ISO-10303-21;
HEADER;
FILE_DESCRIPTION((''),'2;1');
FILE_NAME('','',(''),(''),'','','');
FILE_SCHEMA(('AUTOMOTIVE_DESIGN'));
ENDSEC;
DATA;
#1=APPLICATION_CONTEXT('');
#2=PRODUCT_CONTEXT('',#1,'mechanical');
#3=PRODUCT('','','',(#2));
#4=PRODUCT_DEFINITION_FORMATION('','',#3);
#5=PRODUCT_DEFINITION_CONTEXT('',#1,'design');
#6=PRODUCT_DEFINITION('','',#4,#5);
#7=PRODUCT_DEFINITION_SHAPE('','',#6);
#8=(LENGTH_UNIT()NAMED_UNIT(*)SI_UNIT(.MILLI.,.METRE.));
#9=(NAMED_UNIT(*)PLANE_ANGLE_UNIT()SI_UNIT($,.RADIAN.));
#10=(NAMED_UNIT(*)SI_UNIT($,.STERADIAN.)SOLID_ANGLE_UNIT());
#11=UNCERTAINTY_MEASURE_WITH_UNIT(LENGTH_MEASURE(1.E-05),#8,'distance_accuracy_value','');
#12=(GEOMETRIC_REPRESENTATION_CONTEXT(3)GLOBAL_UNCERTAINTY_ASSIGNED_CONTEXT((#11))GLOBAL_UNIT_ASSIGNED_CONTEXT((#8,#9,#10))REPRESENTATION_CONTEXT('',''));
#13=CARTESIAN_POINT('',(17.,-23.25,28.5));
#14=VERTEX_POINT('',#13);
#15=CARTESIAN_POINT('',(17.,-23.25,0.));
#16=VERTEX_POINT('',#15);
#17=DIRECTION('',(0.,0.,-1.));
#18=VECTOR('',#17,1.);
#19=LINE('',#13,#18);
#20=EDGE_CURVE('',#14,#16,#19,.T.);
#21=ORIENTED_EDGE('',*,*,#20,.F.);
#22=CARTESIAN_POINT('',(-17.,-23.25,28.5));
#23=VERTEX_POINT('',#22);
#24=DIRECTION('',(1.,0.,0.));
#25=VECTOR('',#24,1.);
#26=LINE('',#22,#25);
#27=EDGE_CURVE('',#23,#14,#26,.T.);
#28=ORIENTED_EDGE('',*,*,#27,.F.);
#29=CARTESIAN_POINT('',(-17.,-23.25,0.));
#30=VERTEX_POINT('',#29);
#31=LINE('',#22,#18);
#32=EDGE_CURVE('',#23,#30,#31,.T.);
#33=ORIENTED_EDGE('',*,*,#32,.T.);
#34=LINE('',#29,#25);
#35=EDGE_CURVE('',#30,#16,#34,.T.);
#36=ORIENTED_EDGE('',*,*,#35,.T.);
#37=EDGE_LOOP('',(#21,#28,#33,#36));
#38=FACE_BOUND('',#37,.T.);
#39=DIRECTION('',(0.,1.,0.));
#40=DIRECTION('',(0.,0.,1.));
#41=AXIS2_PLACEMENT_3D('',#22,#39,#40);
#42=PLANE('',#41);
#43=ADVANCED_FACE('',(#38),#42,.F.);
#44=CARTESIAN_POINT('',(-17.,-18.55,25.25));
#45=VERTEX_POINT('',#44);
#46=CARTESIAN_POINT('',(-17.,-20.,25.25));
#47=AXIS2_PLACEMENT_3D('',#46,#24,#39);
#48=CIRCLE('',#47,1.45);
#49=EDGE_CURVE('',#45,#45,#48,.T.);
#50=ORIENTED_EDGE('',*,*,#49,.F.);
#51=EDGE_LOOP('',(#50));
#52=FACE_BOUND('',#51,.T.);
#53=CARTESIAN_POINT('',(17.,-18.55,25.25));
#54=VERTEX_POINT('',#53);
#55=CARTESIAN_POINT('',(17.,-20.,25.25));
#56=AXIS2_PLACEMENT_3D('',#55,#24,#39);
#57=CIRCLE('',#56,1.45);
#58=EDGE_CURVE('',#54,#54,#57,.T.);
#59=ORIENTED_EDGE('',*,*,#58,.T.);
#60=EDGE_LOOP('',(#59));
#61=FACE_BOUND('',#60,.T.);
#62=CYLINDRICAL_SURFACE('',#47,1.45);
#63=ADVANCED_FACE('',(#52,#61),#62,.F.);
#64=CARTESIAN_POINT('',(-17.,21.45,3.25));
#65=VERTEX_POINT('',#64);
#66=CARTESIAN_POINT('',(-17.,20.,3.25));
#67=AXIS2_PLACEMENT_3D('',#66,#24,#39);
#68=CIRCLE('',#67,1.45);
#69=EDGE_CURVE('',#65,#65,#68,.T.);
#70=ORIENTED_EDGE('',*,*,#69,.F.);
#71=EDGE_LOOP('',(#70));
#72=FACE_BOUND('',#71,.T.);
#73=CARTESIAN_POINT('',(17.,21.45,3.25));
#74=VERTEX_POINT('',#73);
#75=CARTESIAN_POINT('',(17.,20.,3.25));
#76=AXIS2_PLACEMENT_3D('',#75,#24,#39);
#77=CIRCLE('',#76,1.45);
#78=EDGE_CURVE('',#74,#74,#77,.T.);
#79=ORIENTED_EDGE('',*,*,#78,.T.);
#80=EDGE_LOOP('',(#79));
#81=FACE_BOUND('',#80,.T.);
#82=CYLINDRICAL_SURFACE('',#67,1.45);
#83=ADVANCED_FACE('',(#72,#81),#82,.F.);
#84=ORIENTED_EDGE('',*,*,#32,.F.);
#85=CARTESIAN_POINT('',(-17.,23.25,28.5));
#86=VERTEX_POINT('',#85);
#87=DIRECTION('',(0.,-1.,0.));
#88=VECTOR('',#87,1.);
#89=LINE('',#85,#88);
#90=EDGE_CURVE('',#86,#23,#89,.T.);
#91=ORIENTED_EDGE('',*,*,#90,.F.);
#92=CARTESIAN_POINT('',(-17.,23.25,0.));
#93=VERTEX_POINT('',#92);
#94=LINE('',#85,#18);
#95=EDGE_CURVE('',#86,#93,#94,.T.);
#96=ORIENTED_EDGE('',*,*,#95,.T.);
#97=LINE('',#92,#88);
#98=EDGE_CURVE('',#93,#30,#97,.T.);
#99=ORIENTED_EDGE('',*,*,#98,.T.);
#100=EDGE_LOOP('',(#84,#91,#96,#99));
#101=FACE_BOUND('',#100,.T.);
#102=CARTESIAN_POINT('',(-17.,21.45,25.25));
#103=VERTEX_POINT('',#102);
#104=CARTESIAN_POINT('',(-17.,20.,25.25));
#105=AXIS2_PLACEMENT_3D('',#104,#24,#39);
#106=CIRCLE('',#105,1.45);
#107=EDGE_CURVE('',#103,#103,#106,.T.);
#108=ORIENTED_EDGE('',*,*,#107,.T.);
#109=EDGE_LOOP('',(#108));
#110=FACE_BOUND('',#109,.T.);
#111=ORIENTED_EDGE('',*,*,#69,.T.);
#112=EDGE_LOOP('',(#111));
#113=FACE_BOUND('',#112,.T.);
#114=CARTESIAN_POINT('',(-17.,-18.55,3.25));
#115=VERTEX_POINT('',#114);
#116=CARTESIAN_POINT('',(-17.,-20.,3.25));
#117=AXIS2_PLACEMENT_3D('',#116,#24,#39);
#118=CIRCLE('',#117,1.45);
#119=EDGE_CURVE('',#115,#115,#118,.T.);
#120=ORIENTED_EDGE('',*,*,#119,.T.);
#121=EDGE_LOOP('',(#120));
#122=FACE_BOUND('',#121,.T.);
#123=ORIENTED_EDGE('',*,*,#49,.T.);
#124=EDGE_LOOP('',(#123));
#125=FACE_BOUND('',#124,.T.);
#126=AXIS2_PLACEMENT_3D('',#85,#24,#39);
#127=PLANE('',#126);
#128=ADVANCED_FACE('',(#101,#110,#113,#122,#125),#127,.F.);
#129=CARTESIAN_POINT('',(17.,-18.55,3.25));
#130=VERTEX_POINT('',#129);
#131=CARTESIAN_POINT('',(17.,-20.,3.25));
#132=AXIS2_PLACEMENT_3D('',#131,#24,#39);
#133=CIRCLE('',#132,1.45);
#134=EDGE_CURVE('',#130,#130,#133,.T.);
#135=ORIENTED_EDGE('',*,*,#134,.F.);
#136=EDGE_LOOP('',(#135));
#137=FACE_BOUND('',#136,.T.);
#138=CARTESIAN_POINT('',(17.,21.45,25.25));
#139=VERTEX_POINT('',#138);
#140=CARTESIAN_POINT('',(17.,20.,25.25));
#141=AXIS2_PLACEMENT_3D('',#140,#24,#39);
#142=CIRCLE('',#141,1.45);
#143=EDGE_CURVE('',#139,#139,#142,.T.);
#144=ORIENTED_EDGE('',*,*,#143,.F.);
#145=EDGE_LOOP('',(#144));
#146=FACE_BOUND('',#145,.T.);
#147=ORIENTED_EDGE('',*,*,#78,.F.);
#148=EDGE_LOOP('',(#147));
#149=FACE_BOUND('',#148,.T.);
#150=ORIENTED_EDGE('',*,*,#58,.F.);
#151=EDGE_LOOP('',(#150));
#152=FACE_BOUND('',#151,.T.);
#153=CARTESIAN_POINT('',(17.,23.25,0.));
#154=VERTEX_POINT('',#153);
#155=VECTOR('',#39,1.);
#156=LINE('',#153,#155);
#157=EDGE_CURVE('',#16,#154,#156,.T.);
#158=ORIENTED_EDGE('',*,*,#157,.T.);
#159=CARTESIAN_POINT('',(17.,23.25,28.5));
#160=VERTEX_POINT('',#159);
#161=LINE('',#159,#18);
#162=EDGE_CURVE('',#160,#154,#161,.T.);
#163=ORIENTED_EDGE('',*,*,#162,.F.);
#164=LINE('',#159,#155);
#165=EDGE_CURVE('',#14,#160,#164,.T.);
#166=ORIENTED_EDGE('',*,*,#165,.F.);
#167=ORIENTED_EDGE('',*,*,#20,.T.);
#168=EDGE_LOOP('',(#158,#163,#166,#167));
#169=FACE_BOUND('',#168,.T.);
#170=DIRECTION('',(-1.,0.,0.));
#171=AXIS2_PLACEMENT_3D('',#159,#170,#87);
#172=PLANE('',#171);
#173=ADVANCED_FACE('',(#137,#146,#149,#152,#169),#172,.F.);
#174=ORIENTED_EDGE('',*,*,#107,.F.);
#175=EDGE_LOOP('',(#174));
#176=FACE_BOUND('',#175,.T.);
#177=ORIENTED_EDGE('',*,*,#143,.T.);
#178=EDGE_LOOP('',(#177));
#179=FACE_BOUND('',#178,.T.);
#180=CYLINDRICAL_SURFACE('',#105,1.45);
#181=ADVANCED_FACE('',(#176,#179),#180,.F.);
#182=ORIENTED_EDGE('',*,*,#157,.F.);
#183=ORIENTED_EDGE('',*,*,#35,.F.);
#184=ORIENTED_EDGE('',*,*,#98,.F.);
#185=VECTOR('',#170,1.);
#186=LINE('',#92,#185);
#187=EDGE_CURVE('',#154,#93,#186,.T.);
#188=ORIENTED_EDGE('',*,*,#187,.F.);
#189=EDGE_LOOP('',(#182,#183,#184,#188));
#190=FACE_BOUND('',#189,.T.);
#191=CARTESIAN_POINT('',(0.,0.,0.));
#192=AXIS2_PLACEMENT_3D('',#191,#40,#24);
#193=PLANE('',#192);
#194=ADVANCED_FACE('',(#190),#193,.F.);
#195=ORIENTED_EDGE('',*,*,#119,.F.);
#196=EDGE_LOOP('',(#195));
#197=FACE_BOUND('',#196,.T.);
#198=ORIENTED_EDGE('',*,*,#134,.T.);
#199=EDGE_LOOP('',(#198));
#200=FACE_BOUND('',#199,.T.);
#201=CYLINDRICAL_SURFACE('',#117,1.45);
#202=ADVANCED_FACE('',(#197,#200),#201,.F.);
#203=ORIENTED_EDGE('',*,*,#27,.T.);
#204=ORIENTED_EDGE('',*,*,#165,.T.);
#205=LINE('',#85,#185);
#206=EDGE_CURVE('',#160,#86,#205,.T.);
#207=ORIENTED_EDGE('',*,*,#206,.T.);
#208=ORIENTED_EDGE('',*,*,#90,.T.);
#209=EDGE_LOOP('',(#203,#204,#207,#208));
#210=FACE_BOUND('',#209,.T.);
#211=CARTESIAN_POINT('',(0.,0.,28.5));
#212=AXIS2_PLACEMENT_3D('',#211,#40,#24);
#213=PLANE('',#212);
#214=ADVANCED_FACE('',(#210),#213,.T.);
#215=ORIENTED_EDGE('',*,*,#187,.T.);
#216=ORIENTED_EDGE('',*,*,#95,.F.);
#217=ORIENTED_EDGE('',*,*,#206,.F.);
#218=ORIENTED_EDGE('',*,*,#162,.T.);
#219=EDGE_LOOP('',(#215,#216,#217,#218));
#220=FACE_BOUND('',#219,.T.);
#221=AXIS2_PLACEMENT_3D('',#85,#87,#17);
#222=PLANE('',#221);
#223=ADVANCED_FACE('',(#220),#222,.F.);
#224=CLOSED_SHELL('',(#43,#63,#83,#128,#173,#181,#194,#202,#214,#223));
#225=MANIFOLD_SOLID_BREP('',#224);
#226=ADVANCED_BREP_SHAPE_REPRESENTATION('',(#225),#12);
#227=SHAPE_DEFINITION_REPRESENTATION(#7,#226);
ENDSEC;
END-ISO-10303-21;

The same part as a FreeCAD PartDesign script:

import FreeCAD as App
import Part
import Sketcher

doc = App.newDocument("Part")
body = doc.addObject("PartDesign::Body", "Body")

# Sketch on XY plane
sketch1 = body.newObject("Sketcher::SketchObject", "Sketch")
sketch1.AttachmentSupport = (doc.getObject("XY_Plane"), [""])
sketch1.MapMode = "FlatFace"
sketch1.addGeometry([
    Part.LineSegment(App.Vector(-17, 23.25, 0), App.Vector(-17, -23.25, 0)),
    Part.LineSegment(App.Vector(-17, -23.25, 0), App.Vector(17, -23.25, 0)),
    Part.LineSegment(App.Vector(17, -23.25, 0), App.Vector(17, 23.25, 0)),
    Part.LineSegment(App.Vector(17, 23.25, 0), App.Vector(-17, 23.25, 0)),
], False)
sketch1.addConstraint([
    Sketcher.Constraint("Coincident", 0, 2, 1, 1),
    Sketcher.Constraint("Coincident", 1, 2, 2, 1),
    Sketcher.Constraint("Coincident", 2, 2, 3, 1),
    Sketcher.Constraint("Coincident", 3, 2, 0, 1),
    Sketcher.Constraint("Vertical", 0),
    Sketcher.Constraint("Horizontal", 1),
    Sketcher.Constraint("Vertical", 2),
    Sketcher.Constraint("Horizontal", 3),
    Sketcher.Constraint("Symmetric", 0, 2, 2, 2, -1, 1),
    Sketcher.Constraint("DistanceX", 1, 1, 1, 2, 34.0),
    Sketcher.Constraint("DistanceY", 0, 2, 0, 1, 46.5),
])
pad1 = body.newObject("PartDesign::Pad", "Pad")
pad1.Profile = sketch1
pad1.Length = 28.5

# Sketch on YZ plane
sketch2 = body.newObject("Sketcher::SketchObject", "Sketch001")
sketch2.AttachmentSupport = (doc.getObject("YZ_Plane"), [""])
sketch2.MapMode = "FlatFace"
sketch2.AttachmentOffset = App.Placement(App.Vector(0, 0, 17), App.Rotation())
sketch2.addGeometry([
    Part.Circle(App.Vector(20, 25.25, 0), App.Vector(0, 0, 1), 1.45),
    Part.Circle(App.Vector(20, 3.25, 0), App.Vector(0, 0, 1), 1.45),
    Part.Circle(App.Vector(-20, 3.25, 0), App.Vector(0, 0, 1), 1.45),
    Part.Circle(App.Vector(-20, 25.25, 0), App.Vector(0, 0, 1), 1.45),
], False)
sketch2.addConstraint([
    Sketcher.Constraint("Equal", 0, 1),
    Sketcher.Constraint("Equal", 1, 2),
    Sketcher.Constraint("Equal", 2, 3),
    Sketcher.Constraint("Symmetric", 1, 3, 2, 3, -2),
    Sketcher.Constraint("Symmetric", 0, 3, 3, 3, -2),
    Sketcher.Constraint("Vertical", 0, 3, 1, 3),
    Sketcher.Constraint("Diameter", 0, 2.9),
    Sketcher.Constraint("DistanceX", -1, 1, 0, 3, 20.0),
    Sketcher.Constraint("DistanceY", 1, 3, 0, 3, 22.0),
    Sketcher.Constraint("DistanceY", -1, 1, 0, 3, 25.25),
])
pocket1 = body.newObject("PartDesign::Pocket", "Pocket")
pocket1.Profile = sketch2
pocket1.Type = "ThroughAll"

doc.recompute()
